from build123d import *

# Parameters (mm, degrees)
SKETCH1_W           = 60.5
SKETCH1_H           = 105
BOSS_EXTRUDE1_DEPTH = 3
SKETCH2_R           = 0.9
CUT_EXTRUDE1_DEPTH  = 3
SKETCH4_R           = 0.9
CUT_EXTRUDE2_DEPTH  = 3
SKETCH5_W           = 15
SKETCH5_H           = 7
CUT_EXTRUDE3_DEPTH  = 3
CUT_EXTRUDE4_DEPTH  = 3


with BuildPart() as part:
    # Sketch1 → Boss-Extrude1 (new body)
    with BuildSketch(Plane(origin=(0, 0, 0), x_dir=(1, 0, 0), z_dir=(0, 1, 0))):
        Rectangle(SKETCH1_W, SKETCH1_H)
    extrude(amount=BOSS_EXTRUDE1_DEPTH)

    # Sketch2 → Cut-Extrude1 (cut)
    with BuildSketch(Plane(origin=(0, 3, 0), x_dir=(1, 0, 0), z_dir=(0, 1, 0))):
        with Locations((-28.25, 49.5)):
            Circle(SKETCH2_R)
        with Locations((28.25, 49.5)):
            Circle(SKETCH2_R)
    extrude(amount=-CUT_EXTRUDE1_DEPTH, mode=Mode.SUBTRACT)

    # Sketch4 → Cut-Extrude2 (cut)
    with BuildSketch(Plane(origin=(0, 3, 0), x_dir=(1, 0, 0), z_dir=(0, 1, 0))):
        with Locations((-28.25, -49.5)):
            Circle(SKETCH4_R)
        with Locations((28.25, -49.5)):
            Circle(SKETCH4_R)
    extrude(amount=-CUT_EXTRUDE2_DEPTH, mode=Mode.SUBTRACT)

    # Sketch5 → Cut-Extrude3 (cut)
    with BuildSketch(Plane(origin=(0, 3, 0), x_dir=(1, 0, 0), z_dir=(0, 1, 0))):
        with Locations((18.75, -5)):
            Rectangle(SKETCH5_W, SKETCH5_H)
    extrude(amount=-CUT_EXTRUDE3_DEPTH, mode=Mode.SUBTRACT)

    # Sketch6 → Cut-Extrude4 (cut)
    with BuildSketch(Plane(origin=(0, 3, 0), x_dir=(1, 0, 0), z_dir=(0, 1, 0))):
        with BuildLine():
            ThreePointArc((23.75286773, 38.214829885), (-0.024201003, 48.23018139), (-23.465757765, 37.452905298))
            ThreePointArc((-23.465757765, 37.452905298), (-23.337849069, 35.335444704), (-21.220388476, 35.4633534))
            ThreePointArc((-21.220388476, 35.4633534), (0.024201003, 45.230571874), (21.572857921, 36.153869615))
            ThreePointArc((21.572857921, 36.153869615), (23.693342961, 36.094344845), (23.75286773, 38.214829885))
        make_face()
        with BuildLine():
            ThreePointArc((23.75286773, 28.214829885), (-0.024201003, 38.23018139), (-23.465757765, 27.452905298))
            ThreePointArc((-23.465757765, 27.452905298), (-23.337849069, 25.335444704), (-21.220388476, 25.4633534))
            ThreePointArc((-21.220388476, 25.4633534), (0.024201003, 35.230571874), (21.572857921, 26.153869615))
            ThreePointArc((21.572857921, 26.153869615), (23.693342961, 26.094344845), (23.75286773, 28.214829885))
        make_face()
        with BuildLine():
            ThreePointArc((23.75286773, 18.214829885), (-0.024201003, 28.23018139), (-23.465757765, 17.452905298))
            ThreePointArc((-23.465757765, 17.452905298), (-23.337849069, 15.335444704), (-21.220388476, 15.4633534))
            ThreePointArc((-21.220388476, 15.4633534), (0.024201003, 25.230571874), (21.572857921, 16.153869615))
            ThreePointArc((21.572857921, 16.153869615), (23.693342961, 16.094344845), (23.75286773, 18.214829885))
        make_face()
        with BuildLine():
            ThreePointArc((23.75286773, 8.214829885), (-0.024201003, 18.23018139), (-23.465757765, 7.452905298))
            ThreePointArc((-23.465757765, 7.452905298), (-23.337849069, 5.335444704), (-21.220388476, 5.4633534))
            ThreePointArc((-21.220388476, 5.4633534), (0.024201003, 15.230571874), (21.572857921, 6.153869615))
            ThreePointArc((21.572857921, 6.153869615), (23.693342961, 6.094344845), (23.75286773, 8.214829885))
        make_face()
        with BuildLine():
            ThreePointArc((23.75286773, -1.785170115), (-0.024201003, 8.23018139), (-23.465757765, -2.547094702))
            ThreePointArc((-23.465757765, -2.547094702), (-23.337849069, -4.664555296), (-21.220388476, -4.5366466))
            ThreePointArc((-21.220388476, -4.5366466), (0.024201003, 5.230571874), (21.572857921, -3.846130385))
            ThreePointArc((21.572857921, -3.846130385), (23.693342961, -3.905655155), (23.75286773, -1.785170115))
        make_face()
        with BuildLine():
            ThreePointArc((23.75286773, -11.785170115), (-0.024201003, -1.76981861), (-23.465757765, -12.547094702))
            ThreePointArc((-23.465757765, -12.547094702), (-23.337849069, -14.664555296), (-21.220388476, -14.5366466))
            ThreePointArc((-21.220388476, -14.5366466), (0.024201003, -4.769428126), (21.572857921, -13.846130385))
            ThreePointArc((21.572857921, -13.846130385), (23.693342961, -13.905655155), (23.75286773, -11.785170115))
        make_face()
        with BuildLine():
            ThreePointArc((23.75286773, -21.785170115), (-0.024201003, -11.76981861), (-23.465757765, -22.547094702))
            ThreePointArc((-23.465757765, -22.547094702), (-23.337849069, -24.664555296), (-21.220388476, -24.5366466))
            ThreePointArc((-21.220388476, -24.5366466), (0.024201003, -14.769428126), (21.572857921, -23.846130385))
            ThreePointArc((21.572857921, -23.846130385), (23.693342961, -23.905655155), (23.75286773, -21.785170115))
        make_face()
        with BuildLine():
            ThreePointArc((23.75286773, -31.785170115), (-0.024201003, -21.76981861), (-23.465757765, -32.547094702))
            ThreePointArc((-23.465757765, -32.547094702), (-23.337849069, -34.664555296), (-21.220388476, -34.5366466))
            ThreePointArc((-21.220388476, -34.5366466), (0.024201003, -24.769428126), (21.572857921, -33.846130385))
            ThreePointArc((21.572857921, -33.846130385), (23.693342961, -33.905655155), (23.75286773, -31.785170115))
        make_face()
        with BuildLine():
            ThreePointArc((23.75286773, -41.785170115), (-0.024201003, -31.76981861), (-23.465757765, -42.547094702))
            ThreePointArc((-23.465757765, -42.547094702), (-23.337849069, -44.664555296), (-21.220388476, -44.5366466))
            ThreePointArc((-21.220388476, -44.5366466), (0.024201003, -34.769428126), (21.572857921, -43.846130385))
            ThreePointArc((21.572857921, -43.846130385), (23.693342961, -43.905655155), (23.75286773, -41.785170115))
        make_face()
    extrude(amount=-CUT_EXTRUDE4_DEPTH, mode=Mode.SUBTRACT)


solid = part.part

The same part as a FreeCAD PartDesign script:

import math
import FreeCAD as App
import Part
import Sketcher


def add_polygon(sketch, points):
    """Adds a closed chain of lines whose ends are joined by coincident constraints."""
    first, n = sketch.GeometryCount, len(points)
    for a, b in zip(points, points[1:] + points[:1]):
        sketch.addGeometry(Part.LineSegment(App.Vector(*a, 0), App.Vector(*b, 0)), False)
    for i in range(n):
        sketch.addConstraint(Sketcher.Constraint("Coincident", first + i, 2, first + (i + 1) % n, 1))

doc = App.newDocument("Part")
params = doc.addObject("Spreadsheet::Sheet", "Params")
for row, (alias, value) in enumerate([
    ("sketch1_height", "105 mm"),
    ("sketch1_width", "60.5 mm"),
    ("pad1_length", "3 mm"),
    ("sketch2_diameter", "1.8 mm"),
    ("pocket1_length", "3 mm"),
    ("sketch3_diameter", "1.8 mm"),
    ("pocket2_length", "3 mm"),
    ("sketch4_width", "15 mm"),
    ("sketch4_height", "7 mm"),
    ("pocket3_length", "3 mm"),
    ("sketch5_radius", "1.5 mm"),
    ("pocket4_length", "3 mm"),
], start=1):
    params.set(f"A{row}", alias)
    params.set(f"B{row}", "=" + value)
    params.setAlias(f"B{row}", alias)

body = doc.addObject("PartDesign::Body", "Body")

# Sketch on XZ plane
sketch1 = body.newObject("Sketcher::SketchObject", "Sketch")
sketch1.AttachmentSupport = (doc.getObject("XZ_Plane"), [""])
sketch1.MapMode = "FlatFace"
add_polygon(sketch1, [(-30.25, -52.5), (-30.25, 52.5), (30.25, 52.5), (30.25, -52.5)])  # lines 0-3
sketch1.addConstraint(Sketcher.Constraint("Vertical", 0))
sketch1.addConstraint(Sketcher.Constraint("Horizontal", 1))
sketch1.addConstraint(Sketcher.Constraint("Vertical", 2))
sketch1.addConstraint(Sketcher.Constraint("Horizontal", 3))
sketch1.addConstraint(Sketcher.Constraint("Symmetric", 0, 2, 2, 2, -1, 1))
sketch1.addConstraint(Sketcher.Constraint("DistanceY", 0, 1, 0, 2, 105.0))
sketch1.addConstraint(Sketcher.Constraint("DistanceX", 1, 1, 1, 2, 60.5))
sketch1.setExpression("Constraints[9]", "Params.sketch1_height")
sketch1.setExpression("Constraints[10]", "Params.sketch1_width")
pad1 = body.newObject("PartDesign::Pad", "Pad")
pad1.Profile = sketch1
pad1.setExpression("Length", "Params.pad1_length")
pad1.Reversed = True

# Sketch on XZ plane
sketch2 = body.newObject("Sketcher::SketchObject", "Sketch001")
sketch2.AttachmentSupport = (doc.getObject("XZ_Plane"), [""])
sketch2.MapMode = "FlatFace"
sketch2.AttachmentOffset = App.Placement(App.Vector(0, 0, -3), App.Rotation())
sketch2.addGeometry(Part.Circle(App.Vector(-28.25, -49.5, 0), App.Vector(0, 0, 1), 0.9), False)
sketch2.addGeometry(Part.Circle(App.Vector(28.25, -49.5, 0), App.Vector(0, 0, 1), 0.9), False)
sketch2.addConstraint(Sketcher.Constraint("Equal", 0, 1))
sketch2.addConstraint(Sketcher.Constraint("Symmetric", 0, 3, 1, 3, -2))
sketch2.addConstraint(Sketcher.Constraint("Diameter", 0, 1.8))
sketch2.addConstraint(Sketcher.Constraint("DistanceY", 0, 3, -1, 1, 49.5))
sketch2.addConstraint(Sketcher.Constraint("DistanceX", 0, 3, 1, 3, 56.5))
sketch2.setExpression("Constraints[2]", "Params.sketch2_diameter")
pocket1 = body.newObject("PartDesign::Pocket", "Pocket")
pocket1.Profile = sketch2
pocket1.setExpression("Length", "Params.pocket1_length")
pocket1.Reversed = True

# Sketch on XZ plane
sketch3 = body.newObject("Sketcher::SketchObject", "Sketch002")
sketch3.AttachmentSupport = (doc.getObject("XZ_Plane"), [""])
sketch3.MapMode = "FlatFace"
sketch3.AttachmentOffset = App.Placement(App.Vector(0, 0, -3), App.Rotation())
sketch3.addGeometry(Part.Circle(App.Vector(-28.25, 49.5, 0), App.Vector(0, 0, 1), 0.9), False)
sketch3.addGeometry(Part.Circle(App.Vector(28.25, 49.5, 0), App.Vector(0, 0, 1), 0.9), False)
sketch3.addConstraint(Sketcher.Constraint("Equal", 0, 1))
sketch3.addConstraint(Sketcher.Constraint("Symmetric", 0, 3, 1, 3, -2))
sketch3.addConstraint(Sketcher.Constraint("Diameter", 0, 1.8))
sketch3.addConstraint(Sketcher.Constraint("DistanceY", -1, 1, 0, 3, 49.5))
sketch3.addConstraint(Sketcher.Constraint("DistanceX", 0, 3, 1, 3, 56.5))
sketch3.setExpression("Constraints[2]", "Params.sketch3_diameter")
pocket2 = body.newObject("PartDesign::Pocket", "Pocket001")
pocket2.Profile = sketch3
pocket2.setExpression("Length", "Params.pocket2_length")
pocket2.Reversed = True

# Sketch on XZ plane
sketch4 = body.newObject("Sketcher::SketchObject", "Sketch003")
sketch4.AttachmentSupport = (doc.getObject("XZ_Plane"), [""])
sketch4.MapMode = "FlatFace"
sketch4.AttachmentOffset = App.Placement(App.Vector(0, 0, -3), App.Rotation())
add_polygon(sketch4, [(11.25, 1.5), (11.25, 8.5), (26.25, 8.5), (26.25, 1.5)])  # lines 0-3
sketch4.addConstraint(Sketcher.Constraint("Vertical", 0))
sketch4.addConstraint(Sketcher.Constraint("Horizontal", 1))
sketch4.addConstraint(Sketcher.Constraint("Vertical", 2))
sketch4.addConstraint(Sketcher.Constraint("Horizontal", 3))
sketch4.addConstraint(Sketcher.Constraint("DistanceX", 1, 1, 1, 2, 15.0))
sketch4.addConstraint(Sketcher.Constraint("DistanceY", 0, 1, 0, 2, 7.0))
sketch4.addConstraint(Sketcher.Constraint("DistanceY", -1, 1, 0, 2, 8.5))
sketch4.addConstraint(Sketcher.Constraint("DistanceX", -1, 1, 0, 2, 11.25))
sketch4.setExpression("Constraints[8]", "Params.sketch4_width")
sketch4.setExpression("Constraints[9]", "Params.sketch4_height")
pocket3 = body.newObject("PartDesign::Pocket", "Pocket002")
pocket3.Profile = sketch4
pocket3.setExpression("Length", "Params.pocket3_length")
pocket3.Reversed = True

# Sketch on XZ plane
sketch5 = body.newObject("Sketcher::SketchObject", "Sketch004")
sketch5.AttachmentSupport = (doc.getObject("XZ_Plane"), [""])
sketch5.MapMode = "FlatFace"
sketch5.AttachmentOffset = App.Placement(App.Vector(0, 0, -3), App.Rotation())
sketch5.addGeometry(Part.ArcOfCircle(Part.Circle(App.Vector(0.492247, -16.224463, 0), App.Vector(0, 0, 1), 32.009885), math.radians(-138.456845), math.radians(-43.392055)), False)
sketch5.addGeometry(Part.ArcOfCircle(Part.Circle(App.Vector(-22.343073, -36.458129, 0), App.Vector(0, 0, 1), 1.5), math.radians(41.543155), math.radians(221.543155)), False)
sketch5.addGeometry(Part.ArcOfCircle(Part.Circle(App.Vector(0.492247, -16.224463, 0), App.Vector(0, 0, 1), 29.009885), math.radians(-138.456845), math.radians(-43.392055)), False)
sketch5.addGeometry(Part.ArcOfCircle(Part.Circle(App.Vector(22.662863, -37.18435, 0), App.Vector(0, 0, 1), 1.5), math.radians(-43.392055), math.radians(136.607945)), False)
sketch5.addGeometry(Part.ArcOfCircle(Part.Circle(App.Vector(0.492247, -6.224463, 0), App.Vector(0, 0, 1), 32.009885), math.radians(-138.456845), math.radians(-43.392055)), False)
sketch5.addGeometry(Part.ArcOfCircle(Part.Circle(App.Vector(-22.343073, -26.458129, 0), App.Vector(0, 0, 1), 1.5), math.radians(41.543155), math.radians(221.543155)), False)
sketch5.addGeometry(Part.ArcOfCircle(Part.Circle(App.Vector(0.492247, -6.224463, 0), App.Vector(0, 0, 1), 29.009885), math.radians(-138.456845), math.radians(-43.392055)), False)
sketch5.addGeometry(Part.ArcOfCircle(Part.Circle(App.Vector(22.662863, -27.18435, 0), App.Vector(0, 0, 1), 1.5), math.radians(-43.392055), math.radians(136.607945)), False)
sketch5.addGeometry(Part.ArcOfCircle(Part.Circle(App.Vector(0.492247, 3.775537, 0), App.Vector(0, 0, 1), 32.009885), math.radians(-138.456845), math.radians(-43.392055)), False)
sketch5.addGeometry(Part.ArcOfCircle(Part.Circle(App.Vector(-22.343073, -16.458129, 0), App.Vector(0, 0, 1), 1.5), math.radians(41.543155), math.radians(221.543155)), False)
sketch5.addGeometry(Part.ArcOfCircle(Part.Circle(App.Vector(0.492247, 3.775537, 0), App.Vector(0, 0, 1), 29.009885), math.radians(-138.456845), math.radians(-43.392055)), False)
sketch5.addGeometry(Part.ArcOfCircle(Part.Circle(App.Vector(22.662863, -17.18435, 0), App.Vector(0, 0, 1), 1.5), math.radians(-43.392055), math.radians(136.607945)), False)
sketch5.addGeometry(Part.ArcOfCircle(Part.Circle(App.Vector(0.492247, 13.775537, 0), App.Vector(0, 0, 1), 32.009885), math.radians(-138.456845), math.radians(-43.392055)), False)
sketch5.addGeometry(Part.ArcOfCircle(Part.Circle(App.Vector(-22.343073, -6.458129, 0), App.Vector(0, 0, 1), 1.5), math.radians(41.543155), math.radians(221.543155)), False)
sketch5.addGeometry(Part.ArcOfCircle(Part.Circle(App.Vector(0.492247, 13.775537, 0), App.Vector(0, 0, 1), 29.009885), math.radians(-138.456845), math.radians(-43.392055)), False)
sketch5.addGeometry(Part.ArcOfCircle(Part.Circle(App.Vector(22.662863, -7.18435, 0), App.Vector(0, 0, 1), 1.5), math.radians(-43.392055), math.radians(136.607945)), False)
sketch5.addGeometry(Part.ArcOfCircle(Part.Circle(App.Vector(0.492247, 23.775537, 0), App.Vector(0, 0, 1), 32.009885), math.radians(-138.456845), math.radians(-43.392055)), False)
sketch5.addGeometry(Part.ArcOfCircle(Part.Circle(App.Vector(-22.343073, 3.541871, 0), App.Vector(0, 0, 1), 1.5), math.radians(41.543155), math.radians(221.543155)), False)
sketch5.addGeometry(Part.ArcOfCircle(Part.Circle(App.Vector(0.492247, 23.775537, 0), App.Vector(0, 0, 1), 29.009885), math.radians(-138.456845), math.radians(-43.392055)), False)
sketch5.addGeometry(Part.ArcOfCircle(Part.Circle(App.Vector(22.662863, 2.81565, 0), App.Vector(0, 0, 1), 1.5), math.radians(-43.392055), math.radians(136.607945)), False)
sketch5.addGeometry(Part.ArcOfCircle(Part.Circle(App.Vector(0.492247, 33.775537, 0), App.Vector(0, 0, 1), 32.009885), math.radians(-138.456845), math.radians(-43.392055)), False)
sketch5.addGeometry(Part.ArcOfCircle(Part.Circle(App.Vector(-22.343073, 13.541871, 0), App.Vector(0, 0, 1), 1.5), math.radians(41.543155), math.radians(221.543155)), False)
sketch5.addGeometry(Part.ArcOfCircle(Part.Circle(App.Vector(0.492247, 33.775537, 0), App.Vector(0, 0, 1), 29.009885), math.radians(-138.456845), math.radians(-43.392055)), False)
sketch5.addGeometry(Part.ArcOfCircle(Part.Circle(App.Vector(22.662863, 12.81565, 0), App.Vector(0, 0, 1), 1.5), math.radians(-43.392055), math.radians(136.607945)), False)
sketch5.addGeometry(Part.ArcOfCircle(Part.Circle(App.Vector(0.492247, 43.775537, 0), App.Vector(0, 0, 1), 32.009885), math.radians(-138.456845), math.radians(-43.392055)), False)
sketch5.addGeometry(Part.ArcOfCircle(Part.Circle(App.Vector(-22.343073, 23.541871, 0), App.Vector(0, 0, 1), 1.5), math.radians(41.543155), math.radians(221.543155)), False)
sketch5.addGeometry(Part.ArcOfCircle(Part.Circle(App.Vector(0.492247, 43.775537, 0), App.Vector(0, 0, 1), 29.009885), math.radians(-138.456845), math.radians(-43.392055)), False)
sketch5.addGeometry(Part.ArcOfCircle(Part.Circle(App.Vector(22.662863, 22.81565, 0), App.Vector(0, 0, 1), 1.5), math.radians(-43.392055), math.radians(136.607945)), False)
sketch5.addGeometry(Part.ArcOfCircle(Part.Circle(App.Vector(0.492247, 53.775537, 0), App.Vector(0, 0, 1), 32.009885), math.radians(-138.456845), math.radians(-43.392055)), False)
sketch5.addGeometry(Part.ArcOfCircle(Part.Circle(App.Vector(-22.343073, 33.541871, 0), App.Vector(0, 0, 1), 1.5), math.radians(41.543155), math.radians(221.543155)), False)
sketch5.addGeometry(Part.ArcOfCircle(Part.Circle(App.Vector(0.492247, 53.775537, 0), App.Vector(0, 0, 1), 29.009885), math.radians(-138.456845), math.radians(-43.392055)), False)
sketch5.addGeometry(Part.ArcOfCircle(Part.Circle(App.Vector(22.662863, 32.81565, 0), App.Vector(0, 0, 1), 1.5), math.radians(-43.392055), math.radians(136.607945)), False)
sketch5.addGeometry(Part.ArcOfCircle(Part.Circle(App.Vector(0.492247, 63.775537, 0), App.Vector(0, 0, 1), 32.009885), math.radians(-138.456845), math.radians(-43.392055)), False)
sketch5.addGeometry(Part.ArcOfCircle(Part.Circle(App.Vector(-22.343073, 43.541871, 0), App.Vector(0, 0, 1), 1.5), math.radians(41.543155), math.radians(221.543155)), False)
sketch5.addGeometry(Part.ArcOfCircle(Part.Circle(App.Vector(0.492247, 63.775537, 0), App.Vector(0, 0, 1), 29.009885), math.radians(-138.456845), math.radians(-43.392055)), False)
sketch5.addGeometry(Part.ArcOfCircle(Part.Circle(App.Vector(22.662863, 42.81565, 0), App.Vector(0, 0, 1), 1.5), math.radians(-43.392055), math.radians(136.607945)), False)
sketch5.addConstraint(Sketcher.Constraint("Tangent", 0, 1, 1, 2))
sketch5.addConstraint(Sketcher.Constraint("Tangent", 1, 1, 2, 1))
sketch5.addConstraint(Sketcher.Constraint("Tangent", 2, 2, 3, 2))
sketch5.addConstraint(Sketcher.Constraint("Tangent", 3, 1, 0, 2))
sketch5.addConstraint(Sketcher.Constraint("Tangent", 4, 1, 5, 2))
sketch5.addConstraint(Sketcher.Constraint("Tangent", 5, 1, 6, 1))
sketch5.addConstraint(Sketcher.Constraint("Tangent", 6, 2, 7, 2))
sketch5.addConstraint(Sketcher.Constraint("Tangent", 7, 1, 4, 2))
sketch5.addConstraint(Sketcher.Constraint("Tangent", 8, 1, 9, 2))
sketch5.addConstraint(Sketcher.Constraint("Tangent", 9, 1, 10, 1))
sketch5.addConstraint(Sketcher.Constraint("Tangent", 10, 2, 11, 2))
sketch5.addConstraint(Sketcher.Constraint("Tangent", 11, 1, 8, 2))
sketch5.addConstraint(Sketcher.Constraint("Tangent", 12, 1, 13, 2))
sketch5.addConstraint(Sketcher.Constraint("Tangent", 13, 1, 14, 1))
sketch5.addConstraint(Sketcher.Constraint("Tangent", 14, 2, 15, 2))
sketch5.addConstraint(Sketcher.Constraint("Tangent", 15, 1, 12, 2))
sketch5.addConstraint(Sketcher.Constraint("Tangent", 16, 1, 17, 2))
sketch5.addConstraint(Sketcher.Constraint("Tangent", 17, 1, 18, 1))
sketch5.addConstraint(Sketcher.Constraint("Tangent", 18, 2, 19, 2))
sketch5.addConstraint(Sketcher.Constraint("Tangent", 19, 1, 16, 2))
sketch5.addConstraint(Sketcher.Constraint("Tangent", 20, 1, 21, 2))
sketch5.addConstraint(Sketcher.Constraint("Tangent", 21, 1, 22, 1))
sketch5.addConstraint(Sketcher.Constraint("Tangent", 22, 2, 23, 2))
sketch5.addConstraint(Sketcher.Constraint("Tangent", 23, 1, 20, 2))
sketch5.addConstraint(Sketcher.Constraint("Tangent", 24, 1, 25, 2))
sketch5.addConstraint(Sketcher.Constraint("Tangent", 25, 1, 26, 1))
sketch5.addConstraint(Sketcher.Constraint("Tangent", 26, 2, 27, 2))
sketch5.addConstraint(Sketcher.Constraint("Tangent", 27, 1, 24, 2))
sketch5.addConstraint(Sketcher.Constraint("Tangent", 28, 1, 29, 2))
sketch5.addConstraint(Sketcher.Constraint("Tangent", 29, 1, 30, 1))
sketch5.addConstraint(Sketcher.Constraint("Tangent", 30, 2, 31, 2))
sketch5.addConstraint(Sketcher.Constraint("Tangent", 31, 1, 28, 2))
sketch5.addConstraint(Sketcher.Constraint("Tangent", 32, 1, 33, 2))
sketch5.addConstraint(Sketcher.Constraint("Tangent", 33, 1, 34, 1))
sketch5.addConstraint(Sketcher.Constraint("Tangent", 34, 2, 35, 2))
sketch5.addConstraint(Sketcher.Constraint("Tangent", 35, 1, 32, 2))
sketch5.addConstraint(Sketcher.Constraint("Coincident", 2, 3, 0, 3))
sketch5.addConstraint(Sketcher.Constraint("Coincident", 6, 3, 4, 3))
sketch5.addConstraint(Sketcher.Constraint("Coincident", 10, 3, 8, 3))
sketch5.addConstraint(Sketcher.Constraint("Coincident", 14, 3, 12, 3))
sketch5.addConstraint(Sketcher.Constraint("Coincident", 18, 3, 16, 3))
sketch5.addConstraint(Sketcher.Constraint("Coincident", 22, 3, 20, 3))
sketch5.addConstraint(Sketcher.Constraint("Coincident", 26, 3, 24, 3))
sketch5.addConstraint(Sketcher.Constraint("Coincident", 30, 3, 28, 3))
sketch5.addConstraint(Sketcher.Constraint("Coincident", 34, 3, 32, 3))
sketch5.addConstraint(Sketcher.Constraint("Equal", 0, 4))
sketch5.addConstraint(Sketcher.Constraint("Equal", 3, 5))
sketch5.addConstraint(Sketcher.Constraint("Equal", 4, 8))
sketch5.addConstraint(Sketcher.Constraint("Equal", 7, 9))
sketch5.addConstraint(Sketcher.Constraint("Equal", 8, 12))
sketch5.addConstraint(Sketcher.Constraint("Equal", 11, 13))
sketch5.addConstraint(Sketcher.Constraint("Equal", 12, 16))
sketch5.addConstraint(Sketcher.Constraint("Equal", 15, 17))
sketch5.addConstraint(Sketcher.Constraint("Equal", 16, 20))
sketch5.addConstraint(Sketcher.Constraint("Equal", 19, 21))
sketch5.addConstraint(Sketcher.Constraint("Equal", 20, 24))
sketch5.addConstraint(Sketcher.Constraint("Equal", 23, 25))
sketch5.addConstraint(Sketcher.Constraint("Equal", 24, 28))
sketch5.addConstraint(Sketcher.Constraint("Equal", 27, 29))
sketch5.addConstraint(Sketcher.Constraint("Equal", 28, 32))
sketch5.addConstraint(Sketcher.Constraint("Equal", 31, 33))
sketch5.addConstraint(Sketcher.Constraint("Vertical", 2, 3, 4, 3))
sketch5.addConstraint(Sketcher.Constraint("Vertical", 1, 3, 5, 3))
sketch5.addConstraint(Sketcher.Constraint("Vertical", 3, 3, 7, 3))
sketch5.addConstraint(Sketcher.Constraint("Vertical", 6, 3, 8, 3))
sketch5.addConstraint(Sketcher.Constraint("Vertical", 5, 3, 9, 3))
sketch5.addConstraint(Sketcher.Constraint("Vertical", 7, 3, 11, 3))
sketch5.addConstraint(Sketcher.Constraint("Vertical", 10, 3, 12, 3))
sketch5.addConstraint(Sketcher.Constraint("Vertical", 9, 3, 13, 3))
sketch5.addConstraint(Sketcher.Constraint("Vertical", 11, 3, 15, 3))
sketch5.addConstraint(Sketcher.Constraint("Vertical", 14, 3, 16, 3))
sketch5.addConstraint(Sketcher.Constraint("Vertical", 13, 3, 17, 3))
sketch5.addConstraint(Sketcher.Constraint("Vertical", 15, 3, 19, 3))
sketch5.addConstraint(Sketcher.Constraint("Vertical", 18, 3, 20, 3))
sketch5.addConstraint(Sketcher.Constraint("Vertical", 17, 3, 21, 3))
sketch5.addConstraint(Sketcher.Constraint("Vertical", 19, 3, 23, 3))
sketch5.addConstraint(Sketcher.Constraint("Vertical", 22, 3, 24, 3))
sketch5.addConstraint(Sketcher.Constraint("Vertical", 21, 3, 25, 3))
sketch5.addConstraint(Sketcher.Constraint("Vertical", 23, 3, 27, 3))
sketch5.addConstraint(Sketcher.Constraint("Vertical", 26, 3, 28, 3))
sketch5.addConstraint(Sketcher.Constraint("Vertical", 25, 3, 29, 3))
sketch5.addConstraint(Sketcher.Constraint("Vertical", 27, 3, 31, 3))
sketch5.addConstraint(Sketcher.Constraint("Vertical", 30, 3, 32, 3))
sketch5.addConstraint(Sketcher.Constraint("Vertical", 29, 3, 33, 3))
sketch5.addConstraint(Sketcher.Constraint("Vertical", 31, 3, 35, 3))
sketch5.addConstraint(Sketcher.Constraint("Radius", 1, 1.5))
sketch5.addConstraint(Sketcher.Constraint("Radius", 0, 32.009885))
sketch5.addConstraint(Sketcher.Constraint("DistanceY", 1, 3, -1, 1, 36.458129))
sketch5.addConstraint(Sketcher.Constraint("DistanceY", 3, 3, -1, 1, 37.18435))
sketch5.addConstraint(Sketcher.Constraint("DistanceY", 5, 3, -1, 1, 26.458129))
sketch5.addConstraint(Sketcher.Constraint("DistanceY", 9, 3, -1, 1, 16.458129))
sketch5.addConstraint(Sketcher.Constraint("DistanceY", 13, 3, -1, 1, 6.458129))
sketch5.addConstraint(Sketcher.Constraint("DistanceY", -1, 1, 17, 3, 3.541871))
sketch5.addConstraint(Sketcher.Constraint("DistanceY", -1, 1, 21, 3, 13.541871))
sketch5.addConstraint(Sketcher.Constraint("DistanceY", -1, 1, 25, 3, 23.541871))
sketch5.addConstraint(Sketcher.Constraint("DistanceY", -1, 1, 29, 3, 33.541871))
sketch5.addConstraint(Sketcher.Constraint("DistanceY", -1, 1, 33, 3, 43.541871))
sketch5.addConstraint(Sketcher.Constraint("DistanceX", 1, 1, -1, 1, 21.220388))
sketch5.addConstraint(Sketcher.Constraint("DistanceY", 3, 1, -1, 1, 38.21483))
sketch5.setExpression("Constraints[85]", "Params.sketch5_radius")
pocket4 = body.newObject("PartDesign::Pocket", "Pocket003")
pocket4.Profile = sketch5
pocket4.setExpression("Length", "Params.pocket4_length")
pocket4.Reversed = True

doc.recompute()
